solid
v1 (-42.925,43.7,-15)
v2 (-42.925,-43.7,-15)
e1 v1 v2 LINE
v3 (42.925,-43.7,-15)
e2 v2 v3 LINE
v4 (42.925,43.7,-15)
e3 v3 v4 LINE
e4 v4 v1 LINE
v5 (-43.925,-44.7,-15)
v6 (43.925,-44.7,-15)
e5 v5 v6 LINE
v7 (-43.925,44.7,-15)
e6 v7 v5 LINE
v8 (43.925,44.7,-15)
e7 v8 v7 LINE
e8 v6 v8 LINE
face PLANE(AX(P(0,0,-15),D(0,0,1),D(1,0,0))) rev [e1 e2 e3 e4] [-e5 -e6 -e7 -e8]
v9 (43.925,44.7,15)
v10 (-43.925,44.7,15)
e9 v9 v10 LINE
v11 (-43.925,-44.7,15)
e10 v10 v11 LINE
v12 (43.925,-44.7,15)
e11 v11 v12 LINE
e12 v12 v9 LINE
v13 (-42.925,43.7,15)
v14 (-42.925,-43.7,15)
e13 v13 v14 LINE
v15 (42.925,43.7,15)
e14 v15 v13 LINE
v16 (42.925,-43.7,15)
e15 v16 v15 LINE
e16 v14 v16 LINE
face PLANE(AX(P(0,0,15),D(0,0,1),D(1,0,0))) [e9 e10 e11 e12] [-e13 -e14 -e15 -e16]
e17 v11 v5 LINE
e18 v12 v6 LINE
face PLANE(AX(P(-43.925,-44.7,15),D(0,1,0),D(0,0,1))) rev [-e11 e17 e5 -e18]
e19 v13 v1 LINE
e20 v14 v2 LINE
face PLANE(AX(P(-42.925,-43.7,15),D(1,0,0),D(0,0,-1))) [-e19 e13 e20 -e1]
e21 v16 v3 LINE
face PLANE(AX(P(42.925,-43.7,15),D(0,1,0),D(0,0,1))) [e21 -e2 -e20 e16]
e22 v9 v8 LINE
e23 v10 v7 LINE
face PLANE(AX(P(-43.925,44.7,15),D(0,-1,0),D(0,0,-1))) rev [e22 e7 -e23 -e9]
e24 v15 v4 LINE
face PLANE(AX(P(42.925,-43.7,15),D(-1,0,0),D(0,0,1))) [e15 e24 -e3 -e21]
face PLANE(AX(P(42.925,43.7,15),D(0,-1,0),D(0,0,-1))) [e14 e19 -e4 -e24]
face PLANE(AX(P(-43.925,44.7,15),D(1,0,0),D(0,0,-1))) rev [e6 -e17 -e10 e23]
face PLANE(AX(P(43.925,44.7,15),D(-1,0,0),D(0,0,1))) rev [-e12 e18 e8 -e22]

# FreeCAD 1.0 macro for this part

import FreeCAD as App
import Part
import Sketcher

V = App.Vector
Q = App.Units.Quantity


def add_polygon(sketch, points):
    """Adds a closed chain of lines whose ends are joined by coincident constraints."""
    first, n = sketch.GeometryCount, len(points)
    for a, b in zip(points, points[1:] + points[:1]):
        sketch.addGeometry(Part.LineSegment(App.Vector(*a, 0), App.Vector(*b, 0)), False)
    for i in range(n):
        sketch.addConstraint(Sketcher.Constraint("Coincident", first + i, 2, first + (i + 1) % n, 1))

doc = App.newDocument("Part")
body = doc.addObject("PartDesign::Body", "Body")

# Sketch on XY plane
sketch1 = body.newObject("Sketcher::SketchObject", "Sketch")
sketch1.AttachmentSupport = (doc.getObject("XY_Plane"), [""])
sketch1.MapMode = "FlatFace"
add_polygon(sketch1, [(-43.925, 44.7), (-43.925, -44.7), (43.925, -44.7), (43.925, 44.7)])  # lines 0-3
add_polygon(sketch1, [(42.925, -43.7), (-42.925, -43.7), (-42.925, 43.7), (42.925, 43.7)])  # lines 4-7
sketch1.addConstraint(Sketcher.Constraint("Vertical", 0))
sketch1.addConstraint(Sketcher.Constraint("Horizontal", 1))
sketch1.addConstraint(Sketcher.Constraint("Vertical", 2))
sketch1.addConstraint(Sketcher.Constraint("Horizontal", 3))
sketch1.addConstraint(Sketcher.Constraint("Horizontal", 4))
sketch1.addConstraint(Sketcher.Constraint("Vertical", 5))
sketch1.addConstraint(Sketcher.Constraint("Horizontal", 6))
sketch1.addConstraint(Sketcher.Constraint("Vertical", 7))
sketch1.addConstraint(Sketcher.Constraint("Symmetric", 0, 2, 2, 2, -1, 1))
sketch1.addConstraint(Sketcher.Constraint("Symmetric", 4, 2, 6, 2, -1, 1))
sketch1.addConstraint(Sketcher.Constraint("DistanceY", 0, 2, 0, 1, Q("89.4 mm")))
sketch1.addConstraint(Sketcher.Constraint("DistanceY", 5, 1, 5, 2, Q("87.4 mm")))
sketch1.addConstraint(Sketcher.Constraint("DistanceX", 0, 2, 4, 2, Q("1 mm")))
sketch1.addConstraint(Sketcher.Constraint("DistanceX", 1, 1, 1, 2, Q("87.85 mm")))
pad1 = body.newObject("PartDesign::Pad", "Pad")
pad1.Profile = sketch1
pad1.Length = 30
pad1.Midplane = True

doc.recompute()
